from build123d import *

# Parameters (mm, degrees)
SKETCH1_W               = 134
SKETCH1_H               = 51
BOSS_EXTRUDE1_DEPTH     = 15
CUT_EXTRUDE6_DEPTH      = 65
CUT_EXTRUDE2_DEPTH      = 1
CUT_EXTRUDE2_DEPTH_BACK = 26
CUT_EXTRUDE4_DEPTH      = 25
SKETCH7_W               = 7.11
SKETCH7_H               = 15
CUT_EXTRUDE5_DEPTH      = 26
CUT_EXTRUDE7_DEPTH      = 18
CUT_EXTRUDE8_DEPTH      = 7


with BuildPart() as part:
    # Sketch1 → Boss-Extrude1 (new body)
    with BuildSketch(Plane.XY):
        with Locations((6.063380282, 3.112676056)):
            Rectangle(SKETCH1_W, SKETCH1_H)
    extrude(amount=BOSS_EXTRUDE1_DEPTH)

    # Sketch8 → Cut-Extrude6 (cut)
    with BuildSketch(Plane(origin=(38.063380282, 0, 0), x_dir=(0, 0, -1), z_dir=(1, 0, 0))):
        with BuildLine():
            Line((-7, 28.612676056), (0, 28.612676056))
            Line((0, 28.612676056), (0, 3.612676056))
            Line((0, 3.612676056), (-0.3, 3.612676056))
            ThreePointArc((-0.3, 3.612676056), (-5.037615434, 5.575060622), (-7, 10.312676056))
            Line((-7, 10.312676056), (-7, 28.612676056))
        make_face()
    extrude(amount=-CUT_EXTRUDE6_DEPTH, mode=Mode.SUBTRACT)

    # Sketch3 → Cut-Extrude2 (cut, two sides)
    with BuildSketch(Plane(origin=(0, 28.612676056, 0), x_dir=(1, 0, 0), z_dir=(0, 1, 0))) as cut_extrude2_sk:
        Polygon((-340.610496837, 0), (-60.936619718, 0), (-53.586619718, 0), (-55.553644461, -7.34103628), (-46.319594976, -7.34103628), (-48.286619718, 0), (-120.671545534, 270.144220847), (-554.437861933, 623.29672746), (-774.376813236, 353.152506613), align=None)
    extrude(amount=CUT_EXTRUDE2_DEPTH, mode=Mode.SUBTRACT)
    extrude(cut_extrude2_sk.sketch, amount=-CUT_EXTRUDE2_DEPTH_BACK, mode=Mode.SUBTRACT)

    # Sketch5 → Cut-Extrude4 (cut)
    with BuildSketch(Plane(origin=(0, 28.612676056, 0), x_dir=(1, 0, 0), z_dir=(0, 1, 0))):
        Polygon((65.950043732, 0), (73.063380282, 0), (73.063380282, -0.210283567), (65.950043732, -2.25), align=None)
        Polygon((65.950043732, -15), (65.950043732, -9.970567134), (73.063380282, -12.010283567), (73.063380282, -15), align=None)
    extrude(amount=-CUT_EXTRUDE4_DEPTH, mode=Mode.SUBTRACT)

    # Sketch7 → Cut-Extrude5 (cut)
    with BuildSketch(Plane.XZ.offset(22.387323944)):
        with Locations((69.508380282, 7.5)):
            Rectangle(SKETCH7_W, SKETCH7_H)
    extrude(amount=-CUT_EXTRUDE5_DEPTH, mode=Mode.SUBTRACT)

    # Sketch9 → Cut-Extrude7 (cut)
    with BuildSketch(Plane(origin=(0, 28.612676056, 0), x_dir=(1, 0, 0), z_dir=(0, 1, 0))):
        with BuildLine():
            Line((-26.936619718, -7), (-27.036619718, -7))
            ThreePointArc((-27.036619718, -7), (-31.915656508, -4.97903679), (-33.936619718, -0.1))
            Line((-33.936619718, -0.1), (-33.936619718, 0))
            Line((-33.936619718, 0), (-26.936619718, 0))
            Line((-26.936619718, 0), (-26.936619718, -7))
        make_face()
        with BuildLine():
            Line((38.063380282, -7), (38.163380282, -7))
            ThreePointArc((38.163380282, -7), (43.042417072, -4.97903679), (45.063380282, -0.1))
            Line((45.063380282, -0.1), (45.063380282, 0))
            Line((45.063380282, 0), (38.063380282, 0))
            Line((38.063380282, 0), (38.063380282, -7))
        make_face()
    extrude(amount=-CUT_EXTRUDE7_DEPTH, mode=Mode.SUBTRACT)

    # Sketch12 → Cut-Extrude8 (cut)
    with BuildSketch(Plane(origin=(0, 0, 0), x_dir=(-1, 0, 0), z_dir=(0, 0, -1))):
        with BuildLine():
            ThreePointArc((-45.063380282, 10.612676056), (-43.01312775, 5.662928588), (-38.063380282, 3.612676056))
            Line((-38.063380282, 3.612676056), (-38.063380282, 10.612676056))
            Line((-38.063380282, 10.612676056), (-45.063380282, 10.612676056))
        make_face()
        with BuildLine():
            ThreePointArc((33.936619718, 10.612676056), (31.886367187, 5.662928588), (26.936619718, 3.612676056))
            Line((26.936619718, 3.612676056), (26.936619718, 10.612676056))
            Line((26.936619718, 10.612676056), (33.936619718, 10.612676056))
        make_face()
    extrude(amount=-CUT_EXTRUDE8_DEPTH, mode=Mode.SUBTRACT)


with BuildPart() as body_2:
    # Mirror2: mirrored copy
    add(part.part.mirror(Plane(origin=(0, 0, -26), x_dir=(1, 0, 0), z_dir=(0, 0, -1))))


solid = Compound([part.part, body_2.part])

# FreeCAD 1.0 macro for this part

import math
import FreeCAD as App
import Part
import Sketcher

V = App.Vector
Q = App.Units.Quantity


def add_polygon(sketch, points):
    """Adds a closed chain of lines whose ends are joined by coincident constraints."""
    first, n = sketch.GeometryCount, len(points)
    for a, b in zip(points, points[1:] + points[:1]):
        sketch.addGeometry(Part.LineSegment(App.Vector(*a, 0), App.Vector(*b, 0)), False)
    for i in range(n):
        sketch.addConstraint(Sketcher.Constraint("Coincident", first + i, 2, first + (i + 1) % n, 1))

doc = App.newDocument("Part")
body = doc.addObject("PartDesign::Body", "Body")

sketch1 = doc.addObject("Sketcher::SketchObject", "Sketch")
body.addObject(sketch1)
sketch1.AttachmentSupport = (doc.XY_Plane, [""])
sketch1.MapMode = "FlatFace"
add_polygon(sketch1, [(-61, 29), (-61, -22), (73, -22), (73, 29)])
sketch1.addConstraint([
    Sketcher.Constraint("Vertical", 0),
    Sketcher.Constraint("Horizontal", 1),
    Sketcher.Constraint("Vertical", 2),
    Sketcher.Constraint("Horizontal", 3),
    Sketcher.Constraint("DistanceX", 1, 1, 1, 2, 134.0),
    Sketcher.Constraint("DistanceY", 0, 2, 0, 1, 51.0),
    Sketcher.Constraint("DistanceX", 0, 2, -1, 1, 60.93662),
    Sketcher.Constraint("DistanceY", 0, 2, -1, 1, 22.387324),
])
pad1 = doc.addObject("PartDesign::Pad", "Pad")
body.addObject(pad1)
pad1.Profile = sketch1
pad1.Length = 15

sketch2 = doc.addObject("Sketcher::SketchObject", "Sketch001")
body.addObject(sketch2)
sketch2.AttachmentSupport = (doc.YZ_Plane, [""])
sketch2.MapMode = "FlatFace"
sketch2.AttachmentOffset = App.Placement(V(0, 0, 38.06338), App.Rotation())
sketch2.addGeometry([
    Part.LineSegment(V(28.61, 0, 0), V(28.61, 7, 0)),
    Part.LineSegment(V(28.61, 7, 0), V(10.31, 7, 0)),
    Part.ArcOfCircle(Part.Circle(V(10.31, 0.3, 0), V(0, 0, 1), 6.7), math.radians(90), math.radians(180)),
    Part.LineSegment(V(3.61, 0.3, 0), V(3.61, 0, 0)),
    Part.LineSegment(V(3.61, 0, 0), V(28.61, 0, 0)),
], False)
sketch2.addConstraint([
    Sketcher.Constraint("Coincident", 0, 2, 1, 1),
    Sketcher.Constraint("Tangent", 1, 2, 2, 1),
    Sketcher.Constraint("Tangent", 2, 2, 3, 1),
    Sketcher.Constraint("Coincident", 3, 2, 4, 1),
    Sketcher.Constraint("Coincident", 4, 2, 0, 1),
    Sketcher.Constraint("Vertical", 0),
    Sketcher.Constraint("Horizontal", 1),
    Sketcher.Constraint("Vertical", 3),
    Sketcher.Constraint("Horizontal", 4),
    Sketcher.Constraint("PointOnObject", 3, 2, -1),
    Sketcher.Constraint("Radius", 2, 6.7),
    Sketcher.Constraint("DistanceX", 4, 1, 4, 2, 25.0),
    Sketcher.Constraint("DistanceY", 0, 1, 0, 2, 7.0),
    Sketcher.Constraint("DistanceX", -1, 1, 2, 3, 10.312676),
])
pocket1 = doc.addObject("PartDesign::Pocket", "Pocket")
body.addObject(pocket1)
pocket1.Profile = sketch2
pocket1.Length = 65

sketch3 = doc.addObject("Sketcher::SketchObject", "Sketch002")
body.addObject(sketch3)
sketch3.AttachmentSupport = (doc.XZ_Plane, [""])
sketch3.MapMode = "FlatFace"
sketch3.AttachmentOffset = App.Placement(V(0, 0, -28.612676), App.Rotation())
add_polygon(sketch3, [(-341, 0), (-54, 0), (-56, 7), (-46, 7), (-48, 0), (-121, -270), (-554, -623), (-774, -353)])
sketch3.addConstraint([
    Sketcher.Constraint("Horizontal", 0),
    Sketcher.Constraint("Horizontal", 2),
    Sketcher.Constraint("PointOnObject", 0, 2, -1),
    Sketcher.Constraint("PointOnObject", 3, 2, -1),
    Sketcher.Constraint("Parallel", 3, 4),
    Sketcher.Constraint("Perpendicular", 5, 6),
    Sketcher.Constraint("Perpendicular", 6, 7),
    Sketcher.Constraint("Equal", 1, 3),
    Sketcher.Constraint("Equal", 5, 7),
    Sketcher.Constraint("Angle", 1, Q("105 deg")),
    Sketcher.Constraint("Distance", 1, 7.6),
    Sketcher.Constraint("DistanceX", 0, 2, 3, 2, 5.3),
    Sketcher.Constraint("DistanceX", 4, 2, 1, 2, 65.117901),
    Sketcher.Constraint("DistanceX", 7, 2, 2, 2, 294.290902),
    Sketcher.Constraint("DistanceX", 0, 2, -1, 1, 53.58662),
    Sketcher.Constraint("DistanceX", 5, 2, -1, 1, 554.437862),
])
pocket2 = doc.addObject("PartDesign::Pocket", "Pocket001")
body.addObject(pocket2)
pocket2.Profile = sketch3
pocket2.Type = "TwoLengths"
pocket2.Length = 1
pocket2.Length2 = 26

sketch4 = doc.addObject("Sketcher::SketchObject", "Sketch003")
body.addObject(sketch4)
sketch4.AttachmentSupport = (doc.XZ_Plane, [""])
sketch4.MapMode = "FlatFace"
sketch4.AttachmentOffset = App.Placement(V(0, 0, -28.612676), App.Rotation())
add_polygon(sketch4, [(73.06, 0), (65.95, 0), (65.95, 2.25), (73.06, 0.21)])
add_polygon(sketch4, [(65.95, 9.97), (65.95, 15), (73.06, 15), (73.06, 12.01)])
sketch4.addConstraint([
    Sketcher.Constraint("Horizontal", 0),
    Sketcher.Constraint("Vertical", 1),
    Sketcher.Constraint("Vertical", 3),
    Sketcher.Constraint("Vertical", 4),
    Sketcher.Constraint("Horizontal", 5),
    Sketcher.Constraint("Vertical", 6),
    Sketcher.Constraint("PointOnObject", 0, 2, -1),
    Sketcher.Constraint("Vertical", 1, 2, 4, 2),
    Sketcher.Constraint("Vertical", 3, 2, 5, 2),
    Sketcher.Constraint("Equal", 2, 7),
    Sketcher.Constraint("Angle", 2, Q("-16 deg")),
    Sketcher.Constraint("DistanceY", -1, 1, 4, 2, 15.0),
    Sketcher.Constraint("Distance", 2, 7.4),
    Sketcher.Constraint("DistanceY", 1, 1, 1, 2, 2.25),
    Sketcher.Constraint("DistanceY", 2, 2, 6, 2, 11.8),
    Sketcher.Constraint("DistanceX", -1, 1, 2, 2, 73.06338),
])
pocket3 = doc.addObject("PartDesign::Pocket", "Pocket002")
body.addObject(pocket3)
pocket3.Profile = sketch4
pocket3.Length = 25
pocket3.Reversed = True

sketch5 = doc.addObject("Sketcher::SketchObject", "Sketch004")
body.addObject(sketch5)
sketch5.AttachmentSupport = (doc.XZ_Plane, [""])
sketch5.MapMode = "FlatFace"
sketch5.AttachmentOffset = App.Placement(V(0, 0, 22.387324), App.Rotation())
add_polygon(sketch5, [(66, 15), (66, 0), (73, 0), (73, 15)])
sketch5.addConstraint([
    Sketcher.Constraint("Vertical", 0),
    Sketcher.Constraint("Horizontal", 1),
    Sketcher.Constraint("Vertical", 2),
    Sketcher.Constraint("Horizontal", 3),
    Sketcher.Constraint("PointOnObject", 0, 2, -1),
    Sketcher.Constraint("DistanceY", 0, 2, 0, 1, 15.0),
    Sketcher.Constraint("DistanceX", 1, 1, 1, 2, 7.11),
    Sketcher.Constraint("DistanceX", -1, 1, 0, 2, 65.95338),
])
pocket4 = doc.addObject("PartDesign::Pocket", "Pocket003")
body.addObject(pocket4)
pocket4.Profile = sketch5
pocket4.Length = 26

sketch6 = doc.addObject("Sketcher::SketchObject", "Sketch005")
body.addObject(sketch6)
sketch6.AttachmentSupport = (doc.XZ_Plane, [""])
sketch6.MapMode = "FlatFace"
sketch6.AttachmentOffset = App.Placement(V(0, 0, -28.612676), App.Rotation())
sketch6.addGeometry([
    Part.LineSegment(V(-27.04, 7, 0), V(-26.94, 7, 0)),
    Part.LineSegment(V(-26.94, 7, 0), V(-26.94, 0, 0)),
    Part.LineSegment(V(-26.94, 0, 0), V(-33.94, 0, 0)),
    Part.LineSegment(V(-33.94, 0, 0), V(-33.94, 0.1, 0)),
    Part.ArcOfCircle(Part.Circle(V(-27.04, 0.1, 0), V(0, 0, 1), 6.9), math.radians(90), math.radians(180)),
    Part.LineSegment(V(38.06, 7, 0), V(38.16, 7, 0)),
    Part.ArcOfCircle(Part.Circle(V(38.16, 0.1, 0), V(0, 0, 1), 6.9), math.radians(0), math.radians(90)),
    Part.LineSegment(V(45.06, 0.1, 0), V(45.06, 0, 0)),
    Part.LineSegment(V(45.06, 0, 0), V(38.06, 0, 0)),
    Part.LineSegment(V(38.06, 0, 0), V(38.06, 7, 0)),
], False)
sketch6.addConstraint([
    Sketcher.Constraint("Coincident", 0, 2, 1, 1),
    Sketcher.Constraint("Coincident", 1, 2, 2, 1),
    Sketcher.Constraint("Coincident", 2, 2, 3, 1),
    Sketcher.Constraint("Tangent", 3, 2, 4, 2),
    Sketcher.Constraint("Tangent", 4, 1, 0, 1),
    Sketcher.Constraint("Tangent", 5, 2, 6, 2),
    Sketcher.Constraint("Tangent", 6, 1, 7, 1),
    Sketcher.Constraint("Coincident", 7, 2, 8, 1),
    Sketcher.Constraint("Coincident", 8, 2, 9, 1),
    Sketcher.Constraint("Coincident", 9, 2, 5, 1),
    Sketcher.Constraint("Horizontal", 0),
    Sketcher.Constraint("Vertical", 1),
    Sketcher.Constraint("Horizontal", 2),
    Sketcher.Constraint("Vertical", 3),
    Sketcher.Constraint("Horizontal", 5),
    Sketcher.Constraint("Vertical", 7),
    Sketcher.Constraint("Horizontal", 8),
    Sketcher.Constraint("Vertical", 9),
    Sketcher.Constraint("Equal", 4, 6),
    Sketcher.Constraint("PointOnObject", 1, 2, -1),
    Sketcher.Constraint("PointOnObject", 7, 2, -1),
    Sketcher.Constraint("Horizontal", 4, 3, 6, 3),
    Sketcher.Constraint("Equal", 0, 5),
    Sketcher.Constraint("Equal", 8, 1),
    Sketcher.Constraint("Radius", 4, 6.9),
    Sketcher.Constraint("DistanceX", 2, 2, 2, 1, 7.0),
    Sketcher.Constraint("DistanceX", 1, 2, 6, 1, 72.0),
    Sketcher.Constraint("DistanceX", 4, 3, -1, 1, 27.03662),
])
pocket5 = doc.addObject("PartDesign::Pocket", "Pocket004")
body.addObject(pocket5)
pocket5.Profile = sketch6
pocket5.Length = 18
pocket5.Reversed = True

sketch7 = doc.addObject("Sketcher::SketchObject", "Sketch006")
body.addObject(sketch7)
sketch7.AttachmentSupport = (doc.XY_Plane, [""])
sketch7.MapMode = "FlatFace"
sketch7.addGeometry([
    Part.ArcOfCircle(Part.Circle(V(38, 11, 0), V(0, 0, 1), 7), math.radians(-90), math.radians(0)),
    Part.LineSegment(V(38, 4, 0), V(38, 11, 0)),
    Part.LineSegment(V(38, 11, 0), V(45, 11, 0)),
    Part.ArcOfCircle(Part.Circle(V(-27, 11, 0), V(0, 0, 1), 7), math.radians(180), math.radians(270)),
    Part.LineSegment(V(-34, 11, 0), V(-27, 11, 0)),
    Part.LineSegment(V(-27, 11, 0), V(-27, 4, 0)),
], False)
sketch7.addConstraint([
    Sketcher.Constraint("Coincident", 0, 1, 1, 1),
    Sketcher.Constraint("Coincident", 1, 2, 2, 1),
    Sketcher.Constraint("Coincident", 2, 2, 0, 2),
    Sketcher.Constraint("Coincident", 3, 1, 4, 1),
    Sketcher.Constraint("Coincident", 4, 2, 5, 1),
    Sketcher.Constraint("Coincident", 5, 2, 3, 2),
    Sketcher.Constraint("Vertical", 1),
    Sketcher.Constraint("Horizontal", 2),
    Sketcher.Constraint("Horizontal", 4),
    Sketcher.Constraint("Vertical", 5),
    Sketcher.Constraint("Coincident", 1, 2, 0, 3),
    Sketcher.Constraint("Coincident", 4, 2, 3, 3),
    Sketcher.Constraint("Equal", 0, 3),
    Sketcher.Constraint("Horizontal", 0, 3, 3, 3),
    Sketcher.Constraint("Radius", 0, 7.0),
    Sketcher.Constraint("DistanceX", 3, 3, 0, 3, 65.0),
    Sketcher.Constraint("DistanceX", -1, 1, 0, 3, 38.06338),
    Sketcher.Constraint("DistanceY", -1, 1, 0, 3, 10.612676),
])
pocket6 = doc.addObject("PartDesign::Pocket", "Pocket005")
body.addObject(pocket6)
pocket6.Profile = sketch7
pocket6.Length = 7
pocket6.Reversed = True
body2 = doc.addObject("PartDesign::Body", "Body001")
doc.recompute()

mirroring = doc.addObject("Part::Mirroring", "Mirroring")
mirroring.Source = body
mirroring.Base = V(0, 0, -26)
mirroring.Normal = V(0, 0, -1)
body2.BaseFeature = mirroring
doc.recompute()
mirroring.Visibility = False

doc.recompute()
